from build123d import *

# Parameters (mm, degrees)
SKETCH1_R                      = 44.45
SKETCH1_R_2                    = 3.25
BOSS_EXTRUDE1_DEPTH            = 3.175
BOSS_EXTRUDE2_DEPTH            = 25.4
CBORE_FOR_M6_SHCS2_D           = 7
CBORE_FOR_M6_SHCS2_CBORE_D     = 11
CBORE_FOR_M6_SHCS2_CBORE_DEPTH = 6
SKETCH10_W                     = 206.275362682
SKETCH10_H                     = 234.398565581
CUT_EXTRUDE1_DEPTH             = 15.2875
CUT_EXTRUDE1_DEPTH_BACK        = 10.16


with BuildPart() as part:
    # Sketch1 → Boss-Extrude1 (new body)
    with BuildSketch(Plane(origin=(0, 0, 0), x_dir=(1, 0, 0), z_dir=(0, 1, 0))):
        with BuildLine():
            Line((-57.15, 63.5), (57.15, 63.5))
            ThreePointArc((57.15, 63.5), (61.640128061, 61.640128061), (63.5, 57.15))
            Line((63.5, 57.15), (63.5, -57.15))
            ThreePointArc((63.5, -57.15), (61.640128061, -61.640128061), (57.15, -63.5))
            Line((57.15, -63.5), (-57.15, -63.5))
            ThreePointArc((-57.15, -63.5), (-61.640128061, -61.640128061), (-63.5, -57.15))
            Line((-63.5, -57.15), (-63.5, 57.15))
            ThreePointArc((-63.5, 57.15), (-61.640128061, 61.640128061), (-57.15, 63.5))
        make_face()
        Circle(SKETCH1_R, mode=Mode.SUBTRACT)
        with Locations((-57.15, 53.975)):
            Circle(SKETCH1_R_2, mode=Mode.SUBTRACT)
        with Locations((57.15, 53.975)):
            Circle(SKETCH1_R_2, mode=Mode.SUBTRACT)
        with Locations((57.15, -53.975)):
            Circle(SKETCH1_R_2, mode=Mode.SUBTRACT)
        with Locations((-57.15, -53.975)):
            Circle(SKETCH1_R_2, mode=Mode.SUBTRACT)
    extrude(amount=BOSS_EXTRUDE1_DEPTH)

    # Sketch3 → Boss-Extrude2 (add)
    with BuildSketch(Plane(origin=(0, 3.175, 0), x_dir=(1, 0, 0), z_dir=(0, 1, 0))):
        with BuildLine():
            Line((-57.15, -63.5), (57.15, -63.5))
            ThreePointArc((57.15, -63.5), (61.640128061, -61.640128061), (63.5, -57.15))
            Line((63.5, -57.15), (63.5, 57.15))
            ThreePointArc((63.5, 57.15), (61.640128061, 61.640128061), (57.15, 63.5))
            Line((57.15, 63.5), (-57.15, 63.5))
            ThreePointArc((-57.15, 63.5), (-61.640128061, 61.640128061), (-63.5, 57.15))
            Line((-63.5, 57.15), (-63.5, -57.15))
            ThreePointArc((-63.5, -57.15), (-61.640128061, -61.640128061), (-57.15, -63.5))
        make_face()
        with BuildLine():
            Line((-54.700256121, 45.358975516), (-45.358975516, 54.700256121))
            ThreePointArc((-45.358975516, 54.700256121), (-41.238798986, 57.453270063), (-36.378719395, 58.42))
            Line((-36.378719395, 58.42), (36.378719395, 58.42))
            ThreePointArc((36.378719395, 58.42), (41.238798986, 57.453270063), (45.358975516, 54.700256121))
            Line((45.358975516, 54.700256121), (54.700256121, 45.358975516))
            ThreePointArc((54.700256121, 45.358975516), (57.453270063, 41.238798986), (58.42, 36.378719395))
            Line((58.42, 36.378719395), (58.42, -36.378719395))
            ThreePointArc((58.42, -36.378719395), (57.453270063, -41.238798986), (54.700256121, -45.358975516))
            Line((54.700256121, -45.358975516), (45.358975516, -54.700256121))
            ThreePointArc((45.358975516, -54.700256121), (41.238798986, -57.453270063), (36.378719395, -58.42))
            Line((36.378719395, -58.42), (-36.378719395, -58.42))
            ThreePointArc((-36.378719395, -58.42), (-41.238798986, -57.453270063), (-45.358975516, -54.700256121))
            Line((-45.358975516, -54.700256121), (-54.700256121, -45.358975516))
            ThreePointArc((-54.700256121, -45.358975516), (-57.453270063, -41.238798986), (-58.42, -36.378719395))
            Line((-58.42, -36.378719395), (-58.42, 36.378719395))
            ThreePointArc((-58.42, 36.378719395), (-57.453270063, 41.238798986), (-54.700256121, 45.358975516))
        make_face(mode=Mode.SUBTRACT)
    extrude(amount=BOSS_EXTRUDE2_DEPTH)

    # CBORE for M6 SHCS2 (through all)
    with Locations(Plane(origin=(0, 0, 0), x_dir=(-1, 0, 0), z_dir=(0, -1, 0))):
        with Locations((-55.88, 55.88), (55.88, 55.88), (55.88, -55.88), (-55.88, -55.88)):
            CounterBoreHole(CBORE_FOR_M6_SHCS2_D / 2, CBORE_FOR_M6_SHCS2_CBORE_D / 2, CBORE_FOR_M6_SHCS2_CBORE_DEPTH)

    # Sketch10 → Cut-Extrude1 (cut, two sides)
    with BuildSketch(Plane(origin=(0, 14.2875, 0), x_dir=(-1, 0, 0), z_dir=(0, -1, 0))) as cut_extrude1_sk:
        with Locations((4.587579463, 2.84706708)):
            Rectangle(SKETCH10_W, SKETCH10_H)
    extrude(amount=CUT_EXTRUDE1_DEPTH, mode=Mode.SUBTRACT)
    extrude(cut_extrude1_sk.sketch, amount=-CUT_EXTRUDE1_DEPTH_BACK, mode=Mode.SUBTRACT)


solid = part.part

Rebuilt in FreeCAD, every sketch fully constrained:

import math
import FreeCAD as App
import Part
import Sketcher
Q = App.Units.Quantity


def add_polygon(sketch, points):
    """Adds a closed chain of lines whose ends are joined by coincident constraints."""
    first, n = sketch.GeometryCount, len(points)
    for a, b in zip(points, points[1:] + points[:1]):
        sketch.addGeometry(Part.LineSegment(App.Vector(*a, 0), App.Vector(*b, 0)), False)
    for i in range(n):
        sketch.addConstraint(Sketcher.Constraint("Coincident", first + i, 2, first + (i + 1) % n, 1))

doc = App.newDocument("Part")
body = doc.addObject("PartDesign::Body", "Body")

sketch1 = body.newObject("Sketcher::SketchObject", "Sketch")
sketch1.AttachmentSupport = (doc.getObject("XZ_Plane"), [""])
sketch1.MapMode = "FlatFace"
sketch1.addGeometry([
    Part.LineSegment(App.Vector(57.1, -63.5, 0), App.Vector(-57.1, -63.5, 0)),
    Part.ArcOfCircle(Part.Circle(App.Vector(-57.2, -57.2, 0), App.Vector(0, 0, 1), 6.3), math.radians(180), math.radians(270)),
    Part.LineSegment(App.Vector(-63.5, -57.1, 0), App.Vector(-63.5, 57.1, 0)),
    Part.ArcOfCircle(Part.Circle(App.Vector(-57.2, 57.2, 0), App.Vector(0, 0, 1), 6.3), math.radians(90), math.radians(180)),
    Part.LineSegment(App.Vector(-57.1, 63.5, 0), App.Vector(57.1, 63.5, 0)),
    Part.ArcOfCircle(Part.Circle(App.Vector(57.2, 57.2, 0), App.Vector(0, 0, 1), 6.3), math.radians(0), math.radians(90)),
    Part.LineSegment(App.Vector(63.5, 57.1, 0), App.Vector(63.5, -57.1, 0)),
    Part.ArcOfCircle(Part.Circle(App.Vector(57.2, -57.2, 0), App.Vector(0, 0, 1), 6.3), math.radians(-90), math.radians(0)),
    Part.Circle(App.Vector(57.1, 54, 0), App.Vector(0, 0, 1), 3.2),
    Part.Circle(App.Vector(-57.1, 54, 0), App.Vector(0, 0, 1), 3.2),
    Part.Circle(App.Vector(57.1, -54, 0), App.Vector(0, 0, 1), 3.2),
    Part.Circle(App.Vector(0, 0, 0), App.Vector(0, 0, 1), 44.5),
    Part.Circle(App.Vector(-57.1, -54, 0), App.Vector(0, 0, 1), 3.2),
], False)
sketch1.addConstraint([
    Sketcher.Constraint("Tangent", 0, 2, 1, 2),
    Sketcher.Constraint("Tangent", 1, 1, 2, 1),
    Sketcher.Constraint("Tangent", 2, 2, 3, 2),
    Sketcher.Constraint("Tangent", 3, 1, 4, 1),
    Sketcher.Constraint("Tangent", 4, 2, 5, 2),
    Sketcher.Constraint("Tangent", 5, 1, 6, 1),
    Sketcher.Constraint("Tangent", 6, 2, 7, 2),
    Sketcher.Constraint("Tangent", 7, 1, 0, 1),
    Sketcher.Constraint("Horizontal", 0),
    Sketcher.Constraint("Vertical", 2),
    Sketcher.Constraint("Horizontal", 4),
    Sketcher.Constraint("Vertical", 6),
    Sketcher.Constraint("Coincident", 11, 3, -1, 1),
    Sketcher.Constraint("Equal", 1, 3),
    Sketcher.Constraint("Equal", 3, 5),
    Sketcher.Constraint("Equal", 5, 7),
    Sketcher.Constraint("Equal", 8, 9),
    Sketcher.Constraint("Equal", 9, 10),
    Sketcher.Constraint("Equal", 10, 12),
    Sketcher.Constraint("Symmetric", 1, 3, 5, 3, -1, 1),
    Sketcher.Constraint("Symmetric", 9, 3, 10, 3, -1, 1),
    Sketcher.Constraint("Symmetric", 8, 3, 12, 3, -1, 1),
    Sketcher.Constraint("Symmetric", 8, 3, 9, 3, -2),
    Sketcher.Constraint("Vertical", 7, 3, 8, 3),
    Sketcher.Constraint("Equal", 4, 2),
    Sketcher.Constraint("Diameter", 11, Q("3.5 in")),
    Sketcher.Constraint("Radius", 1, Q("0.25 in")),
    Sketcher.Constraint("DistanceX", 0, 2, 0, 1, Q("4.5 in")),
    Sketcher.Constraint("Diameter", 8, Q("6.5 mm")),
    Sketcher.Constraint("DistanceY", 10, 3, 8, 3, Q("4.25 in")),
])
pad1 = body.newObject("PartDesign::Pad", "Pad")
pad1.Profile = sketch1
pad1.Length = Q("0.125 in")
pad1.Reversed = True

sketch2 = body.newObject("Sketcher::SketchObject", "Sketch001")
sketch2.AttachmentSupport = (doc.getObject("XZ_Plane"), [""])
sketch2.MapMode = "FlatFace"
sketch2.AttachmentOffset = App.Placement(App.Vector(0, 0, -0.125 * 25.4), App.Rotation())
sketch2.addGeometry([
    Part.LineSegment(App.Vector(-57, 64, 0), App.Vector(57, 64, 0)),
    Part.ArcOfCircle(Part.Circle(App.Vector(57, 57, 0), App.Vector(0, 0, 1), 6), math.radians(0), math.radians(90)),
    Part.LineSegment(App.Vector(64, 57, 0), App.Vector(64, -57, 0)),
    Part.ArcOfCircle(Part.Circle(App.Vector(57, -57, 0), App.Vector(0, 0, 1), 6), math.radians(-90), math.radians(0)),
    Part.LineSegment(App.Vector(57, -64, 0), App.Vector(-57, -64, 0)),
    Part.ArcOfCircle(Part.Circle(App.Vector(-57, -57, 0), App.Vector(0, 0, 1), 6), math.radians(180), math.radians(270)),
    Part.LineSegment(App.Vector(-64, -57, 0), App.Vector(-64, 57, 0)),
    Part.ArcOfCircle(Part.Circle(App.Vector(-57, 57, 0), App.Vector(0, 0, 1), 6), math.radians(90), math.radians(180)),
    Part.ArcOfCircle(Part.Circle(App.Vector(-46, -36, 0), App.Vector(0, 0, 1), 13), math.radians(180), math.radians(225)),
    Part.LineSegment(App.Vector(-55, -45, 0), App.Vector(-45, -55, 0)),
    Part.ArcOfCircle(Part.Circle(App.Vector(-36, -46, 0), App.Vector(0, 0, 1), 13), math.radians(-135), math.radians(-90)),
    Part.LineSegment(App.Vector(-36, -58, 0), App.Vector(36, -58, 0)),
    Part.ArcOfCircle(Part.Circle(App.Vector(36, -46, 0), App.Vector(0, 0, 1), 13), math.radians(-90), math.radians(-45)),
    Part.LineSegment(App.Vector(45, -55, 0), App.Vector(55, -45, 0)),
    Part.ArcOfCircle(Part.Circle(App.Vector(46, -36, 0), App.Vector(0, 0, 1), 13), math.radians(-45), math.radians(0)),
    Part.LineSegment(App.Vector(58, -36, 0), App.Vector(58, 36, 0)),
    Part.ArcOfCircle(Part.Circle(App.Vector(46, 36, 0), App.Vector(0, 0, 1), 13), math.radians(0), math.radians(45)),
    Part.LineSegment(App.Vector(55, 45, 0), App.Vector(45, 55, 0)),
    Part.ArcOfCircle(Part.Circle(App.Vector(36, 46, 0), App.Vector(0, 0, 1), 13), math.radians(45), math.radians(90)),
    Part.LineSegment(App.Vector(36, 58, 0), App.Vector(-36, 58, 0)),
    Part.ArcOfCircle(Part.Circle(App.Vector(-36, 46, 0), App.Vector(0, 0, 1), 13), math.radians(90), math.radians(135)),
    Part.LineSegment(App.Vector(-45, 55, 0), App.Vector(-55, 45, 0)),
    Part.ArcOfCircle(Part.Circle(App.Vector(-46, 36, 0), App.Vector(0, 0, 1), 13), math.radians(135), math.radians(180)),
    Part.LineSegment(App.Vector(-58, 36, 0), App.Vector(-58, -36, 0)),
], False)
sketch2.addConstraint([
    Sketcher.Constraint("Tangent", 0, 2, 1, 2),
    Sketcher.Constraint("Tangent", 1, 1, 2, 1),
    Sketcher.Constraint("Tangent", 2, 2, 3, 2),
    Sketcher.Constraint("Tangent", 3, 1, 4, 1),
    Sketcher.Constraint("Tangent", 4, 2, 5, 2),
    Sketcher.Constraint("Tangent", 5, 1, 6, 1),
    Sketcher.Constraint("Tangent", 6, 2, 7, 2),
    Sketcher.Constraint("Tangent", 7, 1, 0, 1),
    Sketcher.Constraint("Tangent", 8, 2, 9, 1),
    Sketcher.Constraint("Tangent", 9, 2, 10, 1),
    Sketcher.Constraint("Tangent", 10, 2, 11, 1),
    Sketcher.Constraint("Tangent", 11, 2, 12, 1),
    Sketcher.Constraint("Tangent", 12, 2, 13, 1),
    Sketcher.Constraint("Tangent", 13, 2, 14, 1),
    Sketcher.Constraint("Tangent", 14, 2, 15, 1),
    Sketcher.Constraint("Tangent", 15, 2, 16, 1),
    Sketcher.Constraint("Tangent", 16, 2, 17, 1),
    Sketcher.Constraint("Tangent", 17, 2, 18, 1),
    Sketcher.Constraint("Tangent", 18, 2, 19, 1),
    Sketcher.Constraint("Tangent", 19, 2, 20, 1),
    Sketcher.Constraint("Tangent", 20, 2, 21, 1),
    Sketcher.Constraint("Tangent", 21, 2, 22, 1),
    Sketcher.Constraint("Tangent", 22, 2, 23, 1),
    Sketcher.Constraint("Tangent", 23, 2, 8, 1),
    Sketcher.Constraint("Horizontal", 0),
    Sketcher.Constraint("Vertical", 2),
    Sketcher.Constraint("Horizontal", 4),
    Sketcher.Constraint("Vertical", 6),
    Sketcher.Constraint("Horizontal", 11),
    Sketcher.Constraint("Vertical", 15),
    Sketcher.Constraint("Horizontal", 19),
    Sketcher.Constraint("Vertical", 23),
    Sketcher.Constraint("Equal", 1, 3),
    Sketcher.Constraint("Equal", 3, 5),
    Sketcher.Constraint("Equal", 5, 7),
    Sketcher.Constraint("Equal", 8, 10),
    Sketcher.Constraint("Equal", 10, 12),
    Sketcher.Constraint("Equal", 12, 14),
    Sketcher.Constraint("Equal", 14, 16),
    Sketcher.Constraint("Equal", 16, 18),
    Sketcher.Constraint("Equal", 18, 20),
    Sketcher.Constraint("Equal", 20, 22),
    Sketcher.Constraint("Symmetric", 1, 3, 5, 3, -1, 1),
    Sketcher.Constraint("Symmetric", 8, 3, 16, 3, -1, 1),
    Sketcher.Constraint("Symmetric", 10, 3, 18, 3, -1, 1),
    Sketcher.Constraint("Symmetric", 12, 2, 20, 2, -1, 1),
    Sketcher.Constraint("Symmetric", 9, 2, 12, 2, -2),
    Sketcher.Constraint("Perpendicular", 9, 13),
    Sketcher.Constraint("Equal", 4, 2),
    Sketcher.Constraint("Equal", 19, 15),
    Sketcher.Constraint("Radius", 8, Q("0.5 in")),
    Sketcher.Constraint("Radius", 1, Q("0.25 in")),
    Sketcher.Constraint("DistanceX", 0, 1, 0, 2, Q("4.5 in")),
    Sketcher.Constraint("DistanceX", 8, 3, -1, 1, Q("1.8 in")),
    Sketcher.Constraint("DistanceX", 11, 1, 11, 2, Q("72.757439 mm")),
])
pad2 = body.newObject("PartDesign::Pad", "Pad001")
pad2.Profile = sketch2
pad2.Length = Q("1 in")
pad2.Reversed = True

sketch3 = body.newObject("Sketcher::SketchObject", "Sketch002")
sketch3.AttachmentSupport = (doc.getObject("XZ_Plane"), [""])
sketch3.MapMode = "FlatFace"
sketch3.addGeometry([
    Part.Circle(App.Vector(55.9, -55.9, 0), App.Vector(0, 0, 1), 3.5),
    Part.Circle(App.Vector(-55.9, -55.9, 0), App.Vector(0, 0, 1), 3.5),
    Part.Circle(App.Vector(-55.9, 55.9, 0), App.Vector(0, 0, 1), 3.5),
    Part.Circle(App.Vector(55.9, 55.9, 0), App.Vector(0, 0, 1), 3.5),
], False)
sketch3.addConstraint([
    Sketcher.Constraint("Equal", 0, 1),
    Sketcher.Constraint("Equal", 1, 2),
    Sketcher.Constraint("Equal", 2, 3),
    Sketcher.Constraint("Symmetric", 0, 3, 2, 3, -1, 1),
    Sketcher.Constraint("Symmetric", 1, 3, 3, 3, -1, 1),
    Sketcher.Constraint("Symmetric", 0, 3, 1, 3, -2),
    Sketcher.Constraint("DistanceX", -1, 1, 0, 3, Q("2.2 in")),
    Sketcher.Constraint("DistanceY", 0, 3, -1, 1, Q("2.2 in")),
    Sketcher.Constraint("Diameter", 0, Q("7 mm")),
])
doc.recompute()
hole = body.newObject("PartDesign::Hole", "Hole")
hole.Profile = sketch3
hole.ThreadType = "None"
hole.Diameter = 7
hole.DepthType = "ThroughAll"
hole.HoleCutType = "Counterbore"
hole.HoleCutDiameter = 11
hole.HoleCutDepth = 6

sketch4 = body.newObject("Sketcher::SketchObject", "Sketch003")
sketch4.AttachmentSupport = (doc.getObject("XZ_Plane"), [""])
sketch4.MapMode = "FlatFace"
sketch4.AttachmentOffset = App.Placement(App.Vector(0, 0, -0.5625 * 25.4), App.Rotation())
add_polygon(sketch4, [(99, -120), (99, 114), (-108, 114), (-108, -120)])
sketch4.addConstraint([
    Sketcher.Constraint("Vertical", 0),
    Sketcher.Constraint("Horizontal", 1),
    Sketcher.Constraint("Vertical", 2),
    Sketcher.Constraint("Horizontal", 3),
    Sketcher.Constraint("DistanceX", -1, 1, 0, 2, Q("98.550102 mm")),
    Sketcher.Constraint("DistanceX", 1, 2, 1, 1, Q("206.275363 mm")),
    Sketcher.Constraint("DistanceY", 0, 1, 0, 2, Q("234.398566 mm")),
    Sketcher.Constraint("DistanceY", 2, 2, -1, 1, Q("120.04635 mm")),
])
pocket1 = body.newObject("PartDesign::Pocket", "Pocket")
pocket1.Profile = sketch4
pocket1.Type = "TwoLengths"
pocket1.Length = 15.2875
pocket1.Length2 = Q("0.4 in")
pocket1.Reversed = True

doc.recompute()
